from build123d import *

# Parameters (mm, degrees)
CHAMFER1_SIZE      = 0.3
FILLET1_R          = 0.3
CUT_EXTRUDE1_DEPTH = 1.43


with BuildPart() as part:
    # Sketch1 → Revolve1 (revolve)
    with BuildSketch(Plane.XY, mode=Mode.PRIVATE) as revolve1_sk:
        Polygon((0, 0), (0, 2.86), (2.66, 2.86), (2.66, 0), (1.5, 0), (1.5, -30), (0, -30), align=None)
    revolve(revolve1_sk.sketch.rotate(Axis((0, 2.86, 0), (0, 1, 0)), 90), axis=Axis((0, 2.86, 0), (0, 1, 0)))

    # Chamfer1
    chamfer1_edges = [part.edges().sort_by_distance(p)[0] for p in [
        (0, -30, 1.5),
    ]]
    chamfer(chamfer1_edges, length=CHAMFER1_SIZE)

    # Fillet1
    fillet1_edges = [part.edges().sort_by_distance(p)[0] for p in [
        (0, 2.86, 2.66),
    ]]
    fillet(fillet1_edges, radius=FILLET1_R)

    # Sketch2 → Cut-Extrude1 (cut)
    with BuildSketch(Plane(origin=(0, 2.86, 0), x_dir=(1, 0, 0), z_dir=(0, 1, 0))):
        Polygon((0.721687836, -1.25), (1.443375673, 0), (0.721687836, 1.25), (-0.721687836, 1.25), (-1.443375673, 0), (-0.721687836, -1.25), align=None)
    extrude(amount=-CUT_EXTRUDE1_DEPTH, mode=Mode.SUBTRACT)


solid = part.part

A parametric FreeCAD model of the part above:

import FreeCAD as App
import Part
import Sketcher
Q = App.Units.Quantity


def edges_at(feature, points):
    """Names of the edges that pass closest to the given points."""
    edges = feature.Shape.Edges
    near = lambda p: min(range(len(edges)), key=lambda i: edges[i].distToShape(Part.Vertex(*p))[0])
    return sorted({f"Edge{near(p) + 1}" for p in points})


def add_polygon(sketch, points):
    """Adds a closed chain of lines whose ends are joined by coincident constraints."""
    first, n = sketch.GeometryCount, len(points)
    for a, b in zip(points, points[1:] + points[:1]):
        sketch.addGeometry(Part.LineSegment(App.Vector(*a, 0), App.Vector(*b, 0)), False)
    for i in range(n):
        sketch.addConstraint(Sketcher.Constraint("Coincident", first + i, 2, first + (i + 1) % n, 1))

doc = App.newDocument("Part")
params = doc.addObject("Spreadsheet::Sheet", "Params")
for row, (alias, value) in enumerate([
    ("sketch1_height", "30 mm"),
    ("sketch1_width", "1.5 mm"),
    ("sketch1_width2", "1.16 mm"),
    ("sketch1_height2", "32.86 mm"),
    ("revolution_angle", "360 deg"),
    ("chamfer_size", "0.3 mm"),
    ("fillet_radius", "0.3 mm"),
    ("pocket1_length", "1.43 mm"),
], start=1):
    params.set(f"A{row}", alias)
    params.set(f"B{row}", "=" + value)
    params.setAlias(f"B{row}", alias)

body = doc.addObject("PartDesign::Body", "Body")

sketch1 = body.newObject("Sketcher::SketchObject", "Sketch")
sketch1.AttachmentSupport = (doc.getObject("XY_Plane"), [""])
sketch1.MapMode = "FlatFace"
add_polygon(sketch1, [(0, 2.9), (0, -30), (1.5, -30), (1.5, 0), (2.7, 0), (2.7, 2.9)])
sketch1.addConstraint(Sketcher.Constraint("Vertical", 0))
sketch1.addConstraint(Sketcher.Constraint("Horizontal", 1))
sketch1.addConstraint(Sketcher.Constraint("Vertical", 2))
sketch1.addConstraint(Sketcher.Constraint("Horizontal", 3))
sketch1.addConstraint(Sketcher.Constraint("Vertical", 4))
sketch1.addConstraint(Sketcher.Constraint("Horizontal", 5))
sketch1.addConstraint(Sketcher.Constraint("PointOnObject", 0, 2, -2))
sketch1.addConstraint(Sketcher.Constraint("PointOnObject", 2, 2, -1))
sketch1.addConstraint(Sketcher.Constraint("DistanceY", 2, 1, 2, 2, Q("30 mm")))
sketch1.addConstraint(Sketcher.Constraint("DistanceX", 1, 1, 1, 2, Q("1.5 mm")))
sketch1.addConstraint(Sketcher.Constraint("DistanceX", 3, 1, 3, 2, Q("1.16 mm")))
sketch1.addConstraint(Sketcher.Constraint("DistanceY", 0, 2, 0, 1, Q("32.86 mm")))
sketch1.setExpression("Constraints[14]", "Params.sketch1_height")
sketch1.setExpression("Constraints[15]", "Params.sketch1_width")
sketch1.setExpression("Constraints[16]", "Params.sketch1_width2")
sketch1.setExpression("Constraints[17]", "Params.sketch1_height2")
revolution = body.newObject("PartDesign::Revolution", "Revolution")
revolution.Profile = sketch1
revolution.ReferenceAxis = (sketch1, ["V_Axis"])
revolution.setExpression("Angle", "Params.revolution_angle")
doc.recompute()

chamfer = body.newObject("PartDesign::Chamfer", "Chamfer")
chamfer.Base = (revolution, edges_at(revolution, [(0, -30, 1.5)]))
chamfer.setExpression("Size", "Params.chamfer_size")
doc.recompute()

fillet = body.newObject("PartDesign::Fillet", "Fillet")
fillet.Base = (chamfer, edges_at(chamfer, [(0, 2.86, 2.66)]))
fillet.setExpression("Radius", "Params.fillet_radius")

sketch2 = body.newObject("Sketcher::SketchObject", "Sketch001")
sketch2.AttachmentSupport = (doc.getObject("XZ_Plane"), [""])
sketch2.MapMode = "FlatFace"
sketch2.AttachmentOffset = App.Placement(App.Vector(0, 0, -2.86), App.Rotation())
add_polygon(sketch2, [(0.7, 1.2), (1.4, 0), (0.7, -1.2), (-0.7, -1.2), (-1.4, 0), (-0.7, 1.2)])
sketch2.addConstraint(Sketcher.Constraint("Horizontal", 2))
sketch2.addConstraint(Sketcher.Constraint("Horizontal", 5))
sketch2.addConstraint(Sketcher.Constraint("Symmetric", 0, 2, 3, 2, -1, 1))
sketch2.addConstraint(Sketcher.Constraint("Symmetric", 1, 2, 4, 2, -1, 1))
sketch2.addConstraint(Sketcher.Constraint("PointOnObject", 0, 2, -1))
sketch2.addConstraint(Sketcher.Constraint("Parallel", 0, 3))
sketch2.addConstraint(Sketcher.Constraint("Vertical", 2, 2, 4, 2))
sketch2.addConstraint(Sketcher.Constraint("Angle", 0, Q("-60 deg")))
sketch2.addConstraint(Sketcher.Constraint("DistanceY", 2, 2, 4, 2, Q("2.5 mm")))
sketch2.addConstraint(Sketcher.Constraint("DistanceX", 2, 2, 2, 1, Q("1.443376 mm")))
pocket1 = body.newObject("PartDesign::Pocket", "Pocket")
pocket1.Profile = sketch2
pocket1.setExpression("Length", "Params.pocket1_length")
pocket1.Reversed = True

doc.recompute()
